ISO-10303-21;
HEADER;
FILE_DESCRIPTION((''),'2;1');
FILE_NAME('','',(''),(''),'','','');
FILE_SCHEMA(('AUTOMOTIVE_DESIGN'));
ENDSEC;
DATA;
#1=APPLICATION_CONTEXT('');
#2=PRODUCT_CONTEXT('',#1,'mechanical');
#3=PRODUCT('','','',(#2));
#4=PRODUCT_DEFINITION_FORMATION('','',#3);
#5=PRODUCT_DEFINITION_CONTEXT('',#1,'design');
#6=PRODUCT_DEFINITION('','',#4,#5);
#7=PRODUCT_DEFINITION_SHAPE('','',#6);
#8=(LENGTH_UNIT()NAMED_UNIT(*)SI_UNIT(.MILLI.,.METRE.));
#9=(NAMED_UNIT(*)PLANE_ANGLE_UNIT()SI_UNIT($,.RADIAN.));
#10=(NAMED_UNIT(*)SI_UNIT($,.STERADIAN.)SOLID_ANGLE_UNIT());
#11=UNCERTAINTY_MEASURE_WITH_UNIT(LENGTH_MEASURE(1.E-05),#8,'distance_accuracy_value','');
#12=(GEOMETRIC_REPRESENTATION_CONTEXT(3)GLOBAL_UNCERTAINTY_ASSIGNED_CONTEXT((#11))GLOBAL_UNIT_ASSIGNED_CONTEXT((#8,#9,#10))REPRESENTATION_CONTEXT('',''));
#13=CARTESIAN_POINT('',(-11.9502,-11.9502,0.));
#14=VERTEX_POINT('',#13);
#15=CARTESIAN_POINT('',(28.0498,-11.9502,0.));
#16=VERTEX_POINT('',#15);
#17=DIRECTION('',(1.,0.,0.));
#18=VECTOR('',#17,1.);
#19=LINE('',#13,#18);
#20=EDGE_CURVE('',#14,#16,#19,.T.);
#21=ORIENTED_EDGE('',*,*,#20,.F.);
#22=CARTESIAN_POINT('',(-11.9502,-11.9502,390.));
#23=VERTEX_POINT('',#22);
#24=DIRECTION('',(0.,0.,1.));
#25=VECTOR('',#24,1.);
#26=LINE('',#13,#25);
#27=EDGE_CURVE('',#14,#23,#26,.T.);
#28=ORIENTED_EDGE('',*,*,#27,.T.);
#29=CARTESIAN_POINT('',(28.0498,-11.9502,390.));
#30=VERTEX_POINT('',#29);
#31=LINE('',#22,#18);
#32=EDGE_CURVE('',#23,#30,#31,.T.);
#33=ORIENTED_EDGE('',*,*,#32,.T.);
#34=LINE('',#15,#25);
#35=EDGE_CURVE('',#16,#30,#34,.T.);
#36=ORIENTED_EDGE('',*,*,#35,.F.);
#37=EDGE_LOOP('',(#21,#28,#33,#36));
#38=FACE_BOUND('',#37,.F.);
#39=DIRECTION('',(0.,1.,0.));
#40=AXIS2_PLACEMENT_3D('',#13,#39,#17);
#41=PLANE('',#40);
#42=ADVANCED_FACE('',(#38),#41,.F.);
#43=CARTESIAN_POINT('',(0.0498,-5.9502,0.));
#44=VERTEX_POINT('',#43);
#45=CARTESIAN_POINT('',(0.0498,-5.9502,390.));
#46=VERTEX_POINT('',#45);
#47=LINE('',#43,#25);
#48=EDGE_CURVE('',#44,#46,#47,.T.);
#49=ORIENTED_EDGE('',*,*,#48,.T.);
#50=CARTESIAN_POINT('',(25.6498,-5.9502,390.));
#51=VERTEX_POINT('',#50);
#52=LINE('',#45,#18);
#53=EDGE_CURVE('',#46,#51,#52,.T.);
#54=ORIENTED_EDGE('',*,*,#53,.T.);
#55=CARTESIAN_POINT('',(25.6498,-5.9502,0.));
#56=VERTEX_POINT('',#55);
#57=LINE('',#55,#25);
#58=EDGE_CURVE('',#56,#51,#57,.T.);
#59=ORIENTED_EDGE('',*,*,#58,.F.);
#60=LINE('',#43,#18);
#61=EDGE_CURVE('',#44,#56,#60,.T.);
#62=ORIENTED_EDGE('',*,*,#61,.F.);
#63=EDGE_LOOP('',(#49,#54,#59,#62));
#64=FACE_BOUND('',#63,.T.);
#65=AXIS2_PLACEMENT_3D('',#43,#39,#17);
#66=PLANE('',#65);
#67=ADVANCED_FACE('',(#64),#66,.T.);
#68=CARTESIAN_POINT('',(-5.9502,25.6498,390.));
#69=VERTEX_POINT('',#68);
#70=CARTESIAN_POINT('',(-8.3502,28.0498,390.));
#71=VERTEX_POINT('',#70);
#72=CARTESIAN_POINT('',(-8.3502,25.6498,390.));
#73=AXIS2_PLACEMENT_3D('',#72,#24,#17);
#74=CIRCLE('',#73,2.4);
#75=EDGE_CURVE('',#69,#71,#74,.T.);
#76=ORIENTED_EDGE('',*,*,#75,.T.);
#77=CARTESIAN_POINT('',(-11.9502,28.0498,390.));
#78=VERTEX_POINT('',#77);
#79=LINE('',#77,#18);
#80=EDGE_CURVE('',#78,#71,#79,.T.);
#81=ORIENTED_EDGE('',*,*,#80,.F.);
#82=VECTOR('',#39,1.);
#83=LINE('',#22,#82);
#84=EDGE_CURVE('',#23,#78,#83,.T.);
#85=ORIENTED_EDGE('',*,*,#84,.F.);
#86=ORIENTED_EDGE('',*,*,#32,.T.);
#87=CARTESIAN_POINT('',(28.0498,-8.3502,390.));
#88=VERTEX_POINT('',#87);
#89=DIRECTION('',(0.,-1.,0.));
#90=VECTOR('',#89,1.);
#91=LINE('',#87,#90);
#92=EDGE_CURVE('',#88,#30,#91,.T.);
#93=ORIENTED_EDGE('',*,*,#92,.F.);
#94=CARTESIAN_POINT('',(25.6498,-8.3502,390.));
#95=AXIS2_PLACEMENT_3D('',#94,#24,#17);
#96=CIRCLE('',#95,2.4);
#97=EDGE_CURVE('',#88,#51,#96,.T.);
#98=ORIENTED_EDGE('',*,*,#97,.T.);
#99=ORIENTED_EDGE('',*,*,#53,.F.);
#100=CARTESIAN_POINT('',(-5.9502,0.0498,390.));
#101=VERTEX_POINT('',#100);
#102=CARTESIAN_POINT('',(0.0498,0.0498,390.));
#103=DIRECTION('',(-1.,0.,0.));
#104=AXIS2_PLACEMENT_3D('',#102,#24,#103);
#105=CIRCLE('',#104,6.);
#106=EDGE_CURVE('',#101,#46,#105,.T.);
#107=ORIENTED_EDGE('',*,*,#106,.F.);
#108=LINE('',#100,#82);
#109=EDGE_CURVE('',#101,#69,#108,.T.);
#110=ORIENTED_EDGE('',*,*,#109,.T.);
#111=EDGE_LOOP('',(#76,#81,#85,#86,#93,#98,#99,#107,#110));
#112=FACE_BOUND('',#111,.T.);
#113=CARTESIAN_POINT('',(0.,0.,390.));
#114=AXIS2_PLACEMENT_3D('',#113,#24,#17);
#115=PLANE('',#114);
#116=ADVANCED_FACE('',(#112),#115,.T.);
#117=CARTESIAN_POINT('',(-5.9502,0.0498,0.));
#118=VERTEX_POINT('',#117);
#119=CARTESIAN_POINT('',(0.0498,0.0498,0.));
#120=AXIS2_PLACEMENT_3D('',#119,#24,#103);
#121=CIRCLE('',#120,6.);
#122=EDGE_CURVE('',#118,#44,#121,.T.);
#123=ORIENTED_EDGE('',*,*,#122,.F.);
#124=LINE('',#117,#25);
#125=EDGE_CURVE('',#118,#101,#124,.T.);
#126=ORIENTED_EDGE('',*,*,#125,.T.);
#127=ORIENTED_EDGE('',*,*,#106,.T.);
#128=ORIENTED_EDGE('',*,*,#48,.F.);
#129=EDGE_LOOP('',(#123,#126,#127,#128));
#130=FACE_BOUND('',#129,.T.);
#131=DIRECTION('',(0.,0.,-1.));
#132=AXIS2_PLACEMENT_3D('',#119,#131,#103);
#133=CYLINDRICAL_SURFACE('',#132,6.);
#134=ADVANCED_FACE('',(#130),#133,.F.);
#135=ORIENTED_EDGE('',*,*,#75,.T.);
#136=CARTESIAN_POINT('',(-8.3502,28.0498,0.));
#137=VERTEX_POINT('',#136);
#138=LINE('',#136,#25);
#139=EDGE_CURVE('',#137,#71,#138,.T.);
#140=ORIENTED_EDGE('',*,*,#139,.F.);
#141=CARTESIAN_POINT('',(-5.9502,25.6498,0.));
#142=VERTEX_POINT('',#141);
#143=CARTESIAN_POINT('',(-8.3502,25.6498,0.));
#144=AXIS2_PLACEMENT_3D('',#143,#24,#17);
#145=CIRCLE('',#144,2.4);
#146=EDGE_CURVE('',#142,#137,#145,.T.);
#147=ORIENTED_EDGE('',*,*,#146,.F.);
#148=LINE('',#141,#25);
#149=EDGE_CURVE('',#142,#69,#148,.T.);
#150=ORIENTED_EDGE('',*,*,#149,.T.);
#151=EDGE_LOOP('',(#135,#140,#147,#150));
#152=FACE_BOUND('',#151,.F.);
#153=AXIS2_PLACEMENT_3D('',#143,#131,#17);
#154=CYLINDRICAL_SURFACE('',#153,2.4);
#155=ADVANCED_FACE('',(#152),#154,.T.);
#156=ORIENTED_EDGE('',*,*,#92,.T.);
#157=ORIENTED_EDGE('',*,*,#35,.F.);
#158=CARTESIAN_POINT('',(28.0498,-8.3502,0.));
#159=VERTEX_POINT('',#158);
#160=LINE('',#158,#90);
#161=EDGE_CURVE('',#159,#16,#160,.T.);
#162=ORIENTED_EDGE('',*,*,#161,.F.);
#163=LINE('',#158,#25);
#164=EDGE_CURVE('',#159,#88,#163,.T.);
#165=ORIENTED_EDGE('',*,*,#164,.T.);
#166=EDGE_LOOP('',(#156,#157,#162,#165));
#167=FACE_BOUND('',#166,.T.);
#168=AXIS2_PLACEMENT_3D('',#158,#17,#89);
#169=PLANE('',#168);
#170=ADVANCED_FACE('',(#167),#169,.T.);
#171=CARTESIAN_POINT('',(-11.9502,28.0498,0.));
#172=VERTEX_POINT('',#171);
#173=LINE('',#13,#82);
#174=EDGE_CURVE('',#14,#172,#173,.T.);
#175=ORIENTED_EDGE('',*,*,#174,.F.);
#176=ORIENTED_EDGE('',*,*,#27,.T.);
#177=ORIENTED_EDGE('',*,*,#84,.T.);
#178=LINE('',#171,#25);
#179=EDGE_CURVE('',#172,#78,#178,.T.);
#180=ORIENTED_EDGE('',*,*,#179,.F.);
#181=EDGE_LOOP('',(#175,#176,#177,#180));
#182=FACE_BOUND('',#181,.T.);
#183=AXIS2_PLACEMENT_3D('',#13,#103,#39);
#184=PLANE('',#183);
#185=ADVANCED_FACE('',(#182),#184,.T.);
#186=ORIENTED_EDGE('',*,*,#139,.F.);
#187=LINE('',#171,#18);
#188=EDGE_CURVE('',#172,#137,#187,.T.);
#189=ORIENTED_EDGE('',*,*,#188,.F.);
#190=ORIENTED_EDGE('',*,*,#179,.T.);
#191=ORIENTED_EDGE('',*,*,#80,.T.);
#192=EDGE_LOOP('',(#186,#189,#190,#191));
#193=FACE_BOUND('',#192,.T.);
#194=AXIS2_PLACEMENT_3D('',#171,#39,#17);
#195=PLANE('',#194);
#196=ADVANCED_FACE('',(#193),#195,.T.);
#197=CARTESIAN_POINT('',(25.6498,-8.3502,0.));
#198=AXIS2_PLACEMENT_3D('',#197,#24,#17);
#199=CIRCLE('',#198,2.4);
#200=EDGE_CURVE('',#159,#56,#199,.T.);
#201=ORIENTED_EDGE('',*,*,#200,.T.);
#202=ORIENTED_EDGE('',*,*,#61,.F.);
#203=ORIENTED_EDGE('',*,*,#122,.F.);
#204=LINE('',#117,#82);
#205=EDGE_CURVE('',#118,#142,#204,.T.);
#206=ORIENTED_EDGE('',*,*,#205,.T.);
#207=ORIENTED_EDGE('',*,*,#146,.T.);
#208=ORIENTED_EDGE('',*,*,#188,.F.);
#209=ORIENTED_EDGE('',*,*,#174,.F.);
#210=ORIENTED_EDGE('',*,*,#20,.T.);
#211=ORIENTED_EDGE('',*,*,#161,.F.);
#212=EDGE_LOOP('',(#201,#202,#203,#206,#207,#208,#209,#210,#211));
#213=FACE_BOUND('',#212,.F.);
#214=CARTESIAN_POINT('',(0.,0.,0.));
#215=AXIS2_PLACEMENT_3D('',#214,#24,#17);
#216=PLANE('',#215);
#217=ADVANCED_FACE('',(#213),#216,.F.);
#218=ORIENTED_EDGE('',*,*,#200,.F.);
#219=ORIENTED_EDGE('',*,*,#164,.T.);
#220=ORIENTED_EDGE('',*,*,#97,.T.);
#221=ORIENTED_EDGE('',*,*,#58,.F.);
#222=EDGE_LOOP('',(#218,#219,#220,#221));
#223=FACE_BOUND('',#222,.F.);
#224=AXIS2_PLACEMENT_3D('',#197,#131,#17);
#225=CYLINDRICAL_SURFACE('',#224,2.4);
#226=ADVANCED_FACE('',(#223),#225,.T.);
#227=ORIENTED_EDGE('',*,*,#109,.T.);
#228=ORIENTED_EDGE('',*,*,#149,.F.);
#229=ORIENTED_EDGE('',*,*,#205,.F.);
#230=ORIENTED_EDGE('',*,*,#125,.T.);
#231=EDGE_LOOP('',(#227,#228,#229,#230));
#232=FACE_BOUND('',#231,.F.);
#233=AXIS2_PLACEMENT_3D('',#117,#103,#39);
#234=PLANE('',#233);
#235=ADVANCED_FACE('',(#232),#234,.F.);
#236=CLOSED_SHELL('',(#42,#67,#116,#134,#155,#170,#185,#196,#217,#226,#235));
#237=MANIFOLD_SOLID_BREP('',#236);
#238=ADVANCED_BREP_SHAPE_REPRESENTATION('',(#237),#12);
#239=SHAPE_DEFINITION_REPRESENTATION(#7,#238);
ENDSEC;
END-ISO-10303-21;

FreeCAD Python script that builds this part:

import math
import FreeCAD as App
import Part
import Sketcher
from FreeCAD import Vector

doc = App.newDocument("Part")
body = doc.addObject("PartDesign::Body", "Body")

# Sketch on XY plane
sketch1 = body.newObject("Sketcher::SketchObject", "Sketch")
sketch1.AttachmentSupport = (doc.getObject("XY_Plane"), [""])
sketch1.MapMode = "FlatFace"
sketch1.addGeometry([
    Part.ArcOfCircle(Part.Circle(Vector(0, 0, 0), Vector(0, 0, 1), 6), math.radians(180), math.radians(270)),  # 0
    Part.LineSegment(Vector(-6, 0, 0), Vector(-6, 25.6, 0)),  # 1
    Part.ArcOfCircle(Part.Circle(Vector(-8.4, 25.6, 0), Vector(0, 0, 1), 2.4), math.radians(0), math.radians(90)),  # 2
    Part.LineSegment(Vector(-8.4, 28, 0), Vector(-12, 28, 0)),  # 3
    Part.LineSegment(Vector(-12, 28, 0), Vector(-12, -12, 0)),  # 4
    Part.LineSegment(Vector(-12, -12, 0), Vector(28, -12, 0)),  # 5
    Part.LineSegment(Vector(28, -12, 0), Vector(28, -8.4, 0)),  # 6
    Part.ArcOfCircle(Part.Circle(Vector(25.6, -8.4, 0), Vector(0, 0, 1), 2.4), math.radians(0), math.radians(90)),  # 7
    Part.LineSegment(Vector(25.6, -6, 0), Vector(0, -6, 0)),  # 8
], False)
sketch1.addConstraint([
    Sketcher.Constraint("Tangent", 0, 1, 1, 1),
    Sketcher.Constraint("Tangent", 1, 2, 2, 1),
    Sketcher.Constraint("Tangent", 2, 2, 3, 1),
    Sketcher.Constraint("Coincident", 3, 2, 4, 1),
    Sketcher.Constraint("Coincident", 4, 2, 5, 1),
    Sketcher.Constraint("Coincident", 5, 2, 6, 1),
    Sketcher.Constraint("Tangent", 6, 2, 7, 1),
    Sketcher.Constraint("Tangent", 7, 2, 8, 1),
    Sketcher.Constraint("Tangent", 8, 2, 0, 2),
    Sketcher.Constraint("Vertical", 1),
    Sketcher.Constraint("Horizontal", 3),
    Sketcher.Constraint("Vertical", 4),
    Sketcher.Constraint("Horizontal", 5),
    Sketcher.Constraint("Vertical", 6),
    Sketcher.Constraint("Horizontal", 8),
    Sketcher.Constraint("Equal", 2, 7),
    Sketcher.Constraint("Equal", 8, 1),
    Sketcher.Constraint("Equal", 5, 4),
    Sketcher.Constraint("Radius", 0, 6.0),
    Sketcher.Constraint("Radius", 2, 2.4),
    Sketcher.Constraint("DistanceX", 5, 1, 5, 2, 40.0),
    Sketcher.Constraint("DistanceX", 3, 2, 1, 2, 6.0),
    Sketcher.Constraint("DistanceX", 3, 2, -1, 1, 11.9502),
    Sketcher.Constraint("DistanceY", 4, 2, -1, 1, 11.9502),
])
pad1 = body.newObject("PartDesign::Pad", "Pad")
pad1.Profile = sketch1
pad1.Length = 390

doc.recompute()
